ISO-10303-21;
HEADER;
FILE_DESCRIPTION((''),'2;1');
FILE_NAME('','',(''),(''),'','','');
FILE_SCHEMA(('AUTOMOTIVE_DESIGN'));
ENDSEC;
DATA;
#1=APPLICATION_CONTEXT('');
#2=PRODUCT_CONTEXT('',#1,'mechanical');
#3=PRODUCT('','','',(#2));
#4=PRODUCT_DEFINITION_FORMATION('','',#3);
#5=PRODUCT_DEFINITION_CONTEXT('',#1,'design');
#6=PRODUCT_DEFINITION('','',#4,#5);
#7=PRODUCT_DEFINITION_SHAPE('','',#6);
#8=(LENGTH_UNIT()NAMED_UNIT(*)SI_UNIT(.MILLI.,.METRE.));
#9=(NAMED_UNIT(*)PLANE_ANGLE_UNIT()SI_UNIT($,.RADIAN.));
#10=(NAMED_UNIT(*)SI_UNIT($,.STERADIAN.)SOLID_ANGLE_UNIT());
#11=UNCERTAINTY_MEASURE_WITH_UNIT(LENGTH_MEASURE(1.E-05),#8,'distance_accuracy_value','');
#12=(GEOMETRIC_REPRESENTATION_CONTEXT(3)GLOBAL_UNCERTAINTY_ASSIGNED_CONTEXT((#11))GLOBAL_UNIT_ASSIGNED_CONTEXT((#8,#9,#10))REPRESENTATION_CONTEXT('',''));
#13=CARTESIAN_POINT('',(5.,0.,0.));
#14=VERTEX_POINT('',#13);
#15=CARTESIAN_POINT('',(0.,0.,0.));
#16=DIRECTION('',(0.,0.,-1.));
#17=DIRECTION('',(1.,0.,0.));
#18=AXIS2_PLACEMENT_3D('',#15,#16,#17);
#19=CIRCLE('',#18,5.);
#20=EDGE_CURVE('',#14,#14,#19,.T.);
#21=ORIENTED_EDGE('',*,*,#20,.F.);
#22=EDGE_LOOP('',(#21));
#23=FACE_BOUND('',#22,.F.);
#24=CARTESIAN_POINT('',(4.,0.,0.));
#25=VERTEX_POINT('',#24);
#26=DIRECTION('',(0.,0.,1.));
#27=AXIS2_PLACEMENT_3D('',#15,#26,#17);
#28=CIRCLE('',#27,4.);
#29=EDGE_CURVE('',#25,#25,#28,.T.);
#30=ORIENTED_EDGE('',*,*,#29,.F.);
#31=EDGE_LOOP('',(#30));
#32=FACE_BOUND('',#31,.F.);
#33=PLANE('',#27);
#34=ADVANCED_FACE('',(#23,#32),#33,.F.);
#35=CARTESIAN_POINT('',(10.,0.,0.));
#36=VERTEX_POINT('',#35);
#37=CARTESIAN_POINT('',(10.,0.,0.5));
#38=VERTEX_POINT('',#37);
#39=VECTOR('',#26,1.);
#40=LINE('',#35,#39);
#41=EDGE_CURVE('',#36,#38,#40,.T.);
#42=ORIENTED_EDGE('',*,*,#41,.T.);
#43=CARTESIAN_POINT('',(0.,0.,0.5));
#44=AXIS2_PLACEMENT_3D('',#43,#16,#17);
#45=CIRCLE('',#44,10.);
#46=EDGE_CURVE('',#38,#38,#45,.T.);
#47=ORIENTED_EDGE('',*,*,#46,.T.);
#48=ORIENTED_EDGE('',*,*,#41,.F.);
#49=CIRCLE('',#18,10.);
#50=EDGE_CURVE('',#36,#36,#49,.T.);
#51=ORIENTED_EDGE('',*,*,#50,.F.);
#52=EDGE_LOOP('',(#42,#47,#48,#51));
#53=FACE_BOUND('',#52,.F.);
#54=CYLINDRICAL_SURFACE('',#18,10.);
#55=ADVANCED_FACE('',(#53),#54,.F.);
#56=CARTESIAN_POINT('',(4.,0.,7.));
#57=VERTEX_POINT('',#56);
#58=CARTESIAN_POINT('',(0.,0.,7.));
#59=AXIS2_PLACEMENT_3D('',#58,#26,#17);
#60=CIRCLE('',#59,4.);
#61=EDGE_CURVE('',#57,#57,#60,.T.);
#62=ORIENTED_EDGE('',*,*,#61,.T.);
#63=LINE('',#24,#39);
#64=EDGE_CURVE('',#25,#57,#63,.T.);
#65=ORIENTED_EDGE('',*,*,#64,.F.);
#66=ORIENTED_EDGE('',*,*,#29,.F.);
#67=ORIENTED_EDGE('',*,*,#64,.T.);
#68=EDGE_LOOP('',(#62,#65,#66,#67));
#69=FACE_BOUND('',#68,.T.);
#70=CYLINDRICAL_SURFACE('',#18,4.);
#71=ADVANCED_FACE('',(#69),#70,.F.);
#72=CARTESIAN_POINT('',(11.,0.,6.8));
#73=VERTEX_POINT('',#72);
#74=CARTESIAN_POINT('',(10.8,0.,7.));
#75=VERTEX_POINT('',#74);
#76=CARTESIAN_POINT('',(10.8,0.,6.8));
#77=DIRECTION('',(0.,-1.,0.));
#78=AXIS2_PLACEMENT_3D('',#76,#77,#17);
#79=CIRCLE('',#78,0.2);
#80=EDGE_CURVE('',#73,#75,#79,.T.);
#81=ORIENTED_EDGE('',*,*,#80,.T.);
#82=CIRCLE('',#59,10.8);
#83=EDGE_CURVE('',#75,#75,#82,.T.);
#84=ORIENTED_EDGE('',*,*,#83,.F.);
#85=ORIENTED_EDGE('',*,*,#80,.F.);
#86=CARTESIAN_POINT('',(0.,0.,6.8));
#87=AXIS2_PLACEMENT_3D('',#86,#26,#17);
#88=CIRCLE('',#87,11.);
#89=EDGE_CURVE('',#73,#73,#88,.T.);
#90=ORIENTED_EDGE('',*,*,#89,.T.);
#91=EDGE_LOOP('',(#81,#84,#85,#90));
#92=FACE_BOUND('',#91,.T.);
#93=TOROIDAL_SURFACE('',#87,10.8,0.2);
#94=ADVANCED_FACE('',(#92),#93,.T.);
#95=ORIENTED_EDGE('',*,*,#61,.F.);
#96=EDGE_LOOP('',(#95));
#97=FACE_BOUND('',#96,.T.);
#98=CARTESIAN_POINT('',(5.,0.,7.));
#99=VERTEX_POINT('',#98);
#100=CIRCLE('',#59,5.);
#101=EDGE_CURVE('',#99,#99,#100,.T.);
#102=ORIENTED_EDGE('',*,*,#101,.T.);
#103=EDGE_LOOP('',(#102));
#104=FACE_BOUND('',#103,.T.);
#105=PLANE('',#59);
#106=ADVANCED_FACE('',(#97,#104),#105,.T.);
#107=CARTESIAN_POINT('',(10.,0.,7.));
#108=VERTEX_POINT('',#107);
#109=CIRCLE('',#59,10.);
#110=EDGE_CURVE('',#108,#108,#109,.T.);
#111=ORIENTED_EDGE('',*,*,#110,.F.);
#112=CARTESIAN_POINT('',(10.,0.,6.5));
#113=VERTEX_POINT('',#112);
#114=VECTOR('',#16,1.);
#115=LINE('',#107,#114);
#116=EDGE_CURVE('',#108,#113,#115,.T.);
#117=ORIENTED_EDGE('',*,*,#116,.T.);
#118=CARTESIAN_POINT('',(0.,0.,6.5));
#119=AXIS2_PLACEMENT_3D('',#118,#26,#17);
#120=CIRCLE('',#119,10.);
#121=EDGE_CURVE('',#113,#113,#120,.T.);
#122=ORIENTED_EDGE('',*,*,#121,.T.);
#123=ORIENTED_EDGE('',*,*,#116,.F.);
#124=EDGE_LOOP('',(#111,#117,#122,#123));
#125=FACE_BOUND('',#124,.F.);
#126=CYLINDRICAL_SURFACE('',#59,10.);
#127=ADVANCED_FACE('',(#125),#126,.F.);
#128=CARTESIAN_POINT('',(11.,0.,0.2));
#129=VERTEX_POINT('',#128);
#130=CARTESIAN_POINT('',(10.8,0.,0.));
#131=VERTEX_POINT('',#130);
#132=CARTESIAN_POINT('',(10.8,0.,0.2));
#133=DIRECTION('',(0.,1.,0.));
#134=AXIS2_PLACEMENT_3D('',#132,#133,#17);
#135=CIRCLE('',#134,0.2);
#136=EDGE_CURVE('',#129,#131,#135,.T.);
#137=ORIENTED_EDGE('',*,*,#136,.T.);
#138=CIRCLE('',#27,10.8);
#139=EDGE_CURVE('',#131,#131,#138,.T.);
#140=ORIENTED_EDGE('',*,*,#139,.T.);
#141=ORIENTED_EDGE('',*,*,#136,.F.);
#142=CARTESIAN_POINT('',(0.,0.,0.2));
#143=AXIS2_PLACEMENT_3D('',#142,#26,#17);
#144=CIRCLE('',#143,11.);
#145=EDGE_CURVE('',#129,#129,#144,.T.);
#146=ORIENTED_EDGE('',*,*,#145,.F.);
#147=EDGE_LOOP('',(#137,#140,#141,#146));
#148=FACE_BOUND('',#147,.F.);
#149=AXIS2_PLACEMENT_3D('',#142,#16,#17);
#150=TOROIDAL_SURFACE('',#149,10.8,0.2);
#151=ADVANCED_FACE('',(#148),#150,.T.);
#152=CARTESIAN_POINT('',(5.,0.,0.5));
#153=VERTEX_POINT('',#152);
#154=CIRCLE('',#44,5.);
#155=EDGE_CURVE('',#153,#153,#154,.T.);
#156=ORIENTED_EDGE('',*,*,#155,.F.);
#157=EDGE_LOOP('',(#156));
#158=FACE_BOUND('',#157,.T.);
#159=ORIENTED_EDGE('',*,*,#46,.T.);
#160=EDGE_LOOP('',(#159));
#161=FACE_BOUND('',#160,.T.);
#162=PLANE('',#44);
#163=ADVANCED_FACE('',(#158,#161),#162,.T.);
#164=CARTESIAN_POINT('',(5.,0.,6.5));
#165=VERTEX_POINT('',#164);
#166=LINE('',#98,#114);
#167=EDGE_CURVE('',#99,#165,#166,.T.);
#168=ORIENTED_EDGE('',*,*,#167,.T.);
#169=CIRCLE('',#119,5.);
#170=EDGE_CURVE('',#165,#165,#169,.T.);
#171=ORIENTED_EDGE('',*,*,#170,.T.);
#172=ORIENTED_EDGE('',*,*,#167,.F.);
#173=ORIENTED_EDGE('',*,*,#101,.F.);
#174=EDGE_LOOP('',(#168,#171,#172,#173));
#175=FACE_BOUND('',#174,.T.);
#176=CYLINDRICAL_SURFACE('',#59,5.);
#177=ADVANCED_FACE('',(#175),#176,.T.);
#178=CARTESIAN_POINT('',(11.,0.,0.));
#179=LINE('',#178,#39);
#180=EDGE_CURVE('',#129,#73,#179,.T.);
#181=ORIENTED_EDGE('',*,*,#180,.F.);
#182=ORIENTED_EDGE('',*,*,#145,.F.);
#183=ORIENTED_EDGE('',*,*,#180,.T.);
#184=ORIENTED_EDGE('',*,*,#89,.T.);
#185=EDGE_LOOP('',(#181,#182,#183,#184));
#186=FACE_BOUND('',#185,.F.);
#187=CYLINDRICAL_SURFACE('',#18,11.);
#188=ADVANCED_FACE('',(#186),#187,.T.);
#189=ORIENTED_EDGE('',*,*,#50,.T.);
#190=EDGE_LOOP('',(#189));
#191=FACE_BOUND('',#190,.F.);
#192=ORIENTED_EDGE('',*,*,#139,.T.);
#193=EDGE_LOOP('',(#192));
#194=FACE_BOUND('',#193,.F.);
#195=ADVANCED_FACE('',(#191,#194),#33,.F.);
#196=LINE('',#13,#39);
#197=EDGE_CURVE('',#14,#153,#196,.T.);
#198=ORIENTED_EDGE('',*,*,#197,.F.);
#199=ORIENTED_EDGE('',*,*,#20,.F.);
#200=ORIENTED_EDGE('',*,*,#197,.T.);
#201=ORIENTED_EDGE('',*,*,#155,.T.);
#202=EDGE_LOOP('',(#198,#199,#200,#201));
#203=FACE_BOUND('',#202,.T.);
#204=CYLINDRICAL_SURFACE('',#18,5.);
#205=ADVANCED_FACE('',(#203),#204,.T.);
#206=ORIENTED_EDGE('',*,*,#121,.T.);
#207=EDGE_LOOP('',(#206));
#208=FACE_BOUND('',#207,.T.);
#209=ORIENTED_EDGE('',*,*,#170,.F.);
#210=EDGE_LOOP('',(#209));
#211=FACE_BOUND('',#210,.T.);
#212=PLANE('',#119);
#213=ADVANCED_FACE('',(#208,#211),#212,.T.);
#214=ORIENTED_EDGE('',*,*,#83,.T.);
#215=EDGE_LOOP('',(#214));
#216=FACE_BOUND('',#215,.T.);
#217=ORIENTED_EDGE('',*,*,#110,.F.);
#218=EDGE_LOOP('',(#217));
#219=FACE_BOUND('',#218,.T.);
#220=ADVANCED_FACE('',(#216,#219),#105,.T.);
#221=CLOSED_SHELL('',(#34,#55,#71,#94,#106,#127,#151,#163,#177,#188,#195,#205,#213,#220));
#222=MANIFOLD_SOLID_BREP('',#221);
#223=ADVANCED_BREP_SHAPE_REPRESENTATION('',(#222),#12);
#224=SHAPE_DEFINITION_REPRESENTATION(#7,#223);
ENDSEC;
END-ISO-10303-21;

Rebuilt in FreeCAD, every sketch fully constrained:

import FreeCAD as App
import Part
import Sketcher


def edges_at(feature, points):
    """Names of the edges that pass closest to the given points."""
    edges = feature.Shape.Edges
    near = lambda p: min(range(len(edges)), key=lambda i: edges[i].distToShape(Part.Vertex(*p))[0])
    return sorted({f"Edge{near(p) + 1}" for p in points})

doc = App.newDocument("Part")
body = doc.addObject("PartDesign::Body", "Body")

sketch1 = body.newObject("Sketcher::SketchObject", "Sketch")
sketch1.AttachmentSupport = (doc.getObject("XY_Plane"), [""])
sketch1.MapMode = "FlatFace"
sketch1.addGeometry([
    Part.Circle(App.Vector(0, 0, 0), App.Vector(0, 0, 1), 11),
    Part.Circle(App.Vector(0, 0, 0), App.Vector(0, 0, 1), 4),
], False)
sketch1.addConstraint([
    Sketcher.Constraint("Coincident", 0, 3, -1, 1),
    Sketcher.Constraint("Coincident", 1, 3, -1, 1),
    Sketcher.Constraint("Diameter", 0, 22.0),
    Sketcher.Constraint("Diameter", 1, 8.0),
])
pad1 = body.newObject("PartDesign::Pad", "Pad")
pad1.Profile = sketch1
pad1.Length = 7

sketch2 = body.newObject("Sketcher::SketchObject", "Sketch001")
sketch2.AttachmentSupport = (doc.getObject("XY_Plane"), [""])
sketch2.MapMode = "FlatFace"
sketch2.addGeometry([
    Part.Circle(App.Vector(0, 0, 0), App.Vector(0, 0, 1), 10),
    Part.Circle(App.Vector(0, 0, 0), App.Vector(0, 0, 1), 5),
], False)
sketch2.addConstraint([
    Sketcher.Constraint("Coincident", 0, 3, -1, 1),
    Sketcher.Constraint("Coincident", 1, 3, -1, 1),
    Sketcher.Constraint("Diameter", 0, 20.0),
    Sketcher.Constraint("Diameter", 1, 10.0),
])
pocket1 = body.newObject("PartDesign::Pocket", "Pocket")
pocket1.Profile = sketch2
pocket1.Length = 0.5
pocket1.Reversed = True

sketch3 = body.newObject("Sketcher::SketchObject", "Sketch002")
sketch3.AttachmentSupport = (doc.getObject("XY_Plane"), [""])
sketch3.MapMode = "FlatFace"
sketch3.AttachmentOffset = App.Placement(App.Vector(0, 0, 7), App.Rotation())
sketch3.addGeometry([
    Part.Circle(App.Vector(0, 0, 0), App.Vector(0, 0, 1), 10),
    Part.Circle(App.Vector(0, 0, 0), App.Vector(0, 0, 1), 5),
], False)
sketch3.addConstraint([
    Sketcher.Constraint("Coincident", 0, 3, -1, 1),
    Sketcher.Constraint("Coincident", 1, 3, -1, 1),
    Sketcher.Constraint("Diameter", 0, 20.0),
    Sketcher.Constraint("Diameter", 1, 10.0),
])
pocket2 = body.newObject("PartDesign::Pocket", "Pocket001")
pocket2.Profile = sketch3
pocket2.Length = 0.5
doc.recompute()

fillet = body.newObject("PartDesign::Fillet", "Fillet")
fillet.Base = (pocket2, edges_at(pocket2, [(-11, 0, 0), (-11, 0, 7)]))
fillet.Radius = 0.2

doc.recompute()
